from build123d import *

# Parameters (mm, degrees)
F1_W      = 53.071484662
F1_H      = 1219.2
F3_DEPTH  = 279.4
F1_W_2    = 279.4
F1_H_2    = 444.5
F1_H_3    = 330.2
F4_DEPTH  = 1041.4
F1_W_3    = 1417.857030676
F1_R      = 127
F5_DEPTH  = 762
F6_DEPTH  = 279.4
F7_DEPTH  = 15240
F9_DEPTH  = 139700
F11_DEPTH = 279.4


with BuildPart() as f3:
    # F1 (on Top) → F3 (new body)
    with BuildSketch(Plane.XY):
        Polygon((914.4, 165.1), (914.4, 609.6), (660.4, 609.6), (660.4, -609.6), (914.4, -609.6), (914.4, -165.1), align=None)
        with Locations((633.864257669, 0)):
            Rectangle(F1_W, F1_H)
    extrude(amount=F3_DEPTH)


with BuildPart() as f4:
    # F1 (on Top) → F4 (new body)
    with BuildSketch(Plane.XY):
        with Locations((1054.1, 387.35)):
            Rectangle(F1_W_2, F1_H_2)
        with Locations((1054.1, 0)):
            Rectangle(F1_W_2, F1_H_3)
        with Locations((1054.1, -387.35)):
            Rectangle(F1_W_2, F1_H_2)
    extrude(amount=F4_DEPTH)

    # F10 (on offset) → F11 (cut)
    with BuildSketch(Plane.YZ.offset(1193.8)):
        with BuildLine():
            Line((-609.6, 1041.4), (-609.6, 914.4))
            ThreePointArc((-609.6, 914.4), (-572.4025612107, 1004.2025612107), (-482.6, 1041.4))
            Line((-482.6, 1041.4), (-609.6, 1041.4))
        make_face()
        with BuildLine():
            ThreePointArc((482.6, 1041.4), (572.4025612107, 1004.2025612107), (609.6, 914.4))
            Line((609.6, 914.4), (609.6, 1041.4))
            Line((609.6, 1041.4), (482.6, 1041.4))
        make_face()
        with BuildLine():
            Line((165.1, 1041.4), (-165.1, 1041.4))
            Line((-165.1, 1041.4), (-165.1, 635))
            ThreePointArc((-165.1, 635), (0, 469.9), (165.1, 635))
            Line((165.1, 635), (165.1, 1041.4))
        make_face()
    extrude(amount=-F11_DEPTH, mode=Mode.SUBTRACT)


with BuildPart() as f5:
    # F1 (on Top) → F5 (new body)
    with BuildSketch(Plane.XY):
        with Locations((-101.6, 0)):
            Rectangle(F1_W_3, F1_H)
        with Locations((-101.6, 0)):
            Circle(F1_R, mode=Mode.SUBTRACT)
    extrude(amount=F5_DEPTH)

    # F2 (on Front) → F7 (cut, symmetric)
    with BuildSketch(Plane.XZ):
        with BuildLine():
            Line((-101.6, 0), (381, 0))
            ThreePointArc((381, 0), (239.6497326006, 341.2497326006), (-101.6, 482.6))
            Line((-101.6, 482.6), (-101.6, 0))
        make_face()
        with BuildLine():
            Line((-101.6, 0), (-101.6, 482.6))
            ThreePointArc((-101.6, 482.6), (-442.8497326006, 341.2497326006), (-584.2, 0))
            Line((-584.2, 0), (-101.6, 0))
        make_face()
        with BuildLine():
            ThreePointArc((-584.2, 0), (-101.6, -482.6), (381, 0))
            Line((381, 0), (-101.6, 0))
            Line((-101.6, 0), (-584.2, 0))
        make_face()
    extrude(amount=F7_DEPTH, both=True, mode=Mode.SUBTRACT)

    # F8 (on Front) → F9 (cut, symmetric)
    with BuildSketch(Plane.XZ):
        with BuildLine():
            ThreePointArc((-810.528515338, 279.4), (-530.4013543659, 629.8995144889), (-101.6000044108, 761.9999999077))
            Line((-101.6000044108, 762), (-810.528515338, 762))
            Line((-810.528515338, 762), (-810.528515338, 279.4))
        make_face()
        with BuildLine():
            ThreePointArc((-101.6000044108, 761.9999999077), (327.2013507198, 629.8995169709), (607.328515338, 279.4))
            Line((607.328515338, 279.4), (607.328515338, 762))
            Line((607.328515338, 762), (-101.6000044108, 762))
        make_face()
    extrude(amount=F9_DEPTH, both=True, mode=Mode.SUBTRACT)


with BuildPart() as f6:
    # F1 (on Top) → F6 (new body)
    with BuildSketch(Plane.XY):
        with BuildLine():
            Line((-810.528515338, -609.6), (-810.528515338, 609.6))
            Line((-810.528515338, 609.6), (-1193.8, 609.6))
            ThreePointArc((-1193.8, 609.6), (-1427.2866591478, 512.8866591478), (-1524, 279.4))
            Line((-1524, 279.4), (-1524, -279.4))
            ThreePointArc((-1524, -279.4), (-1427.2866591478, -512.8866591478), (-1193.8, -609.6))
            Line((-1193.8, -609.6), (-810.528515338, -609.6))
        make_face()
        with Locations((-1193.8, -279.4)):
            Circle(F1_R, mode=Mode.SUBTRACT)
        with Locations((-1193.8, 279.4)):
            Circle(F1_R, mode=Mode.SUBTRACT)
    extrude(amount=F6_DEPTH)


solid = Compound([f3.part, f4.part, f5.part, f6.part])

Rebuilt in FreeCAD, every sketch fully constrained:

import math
import FreeCAD as App
import Part
import Sketcher
Q = App.Units.Quantity

doc = App.newDocument("Part")
body = doc.addObject("PartDesign::Body", "Body")

# Sketch on XY plane
sketch1 = doc.addObject("Sketcher::SketchObject", "Sketch")
body.addObject(sketch1)
sketch1.AttachmentSupport = (doc.XY_Plane, [""])
sketch1.MapMode = "FlatFace"
sketch1.addGeometry([
    Part.LineSegment(App.Vector(914.4, 609.6, 0), App.Vector(607.328515, 609.6, 0)),
    Part.LineSegment(App.Vector(607.328515, 609.6, 0), App.Vector(607.328515, -609.6, 0)),
    Part.LineSegment(App.Vector(607.328515, -609.6, 0), App.Vector(914.4, -609.6, 0)),
    Part.LineSegment(App.Vector(914.4, -609.6, 0), App.Vector(914.4, 609.6, 0)),
], False)
sketch1.addConstraint([
    Sketcher.Constraint("Coincident", 0, 2, 1, 1),
    Sketcher.Constraint("Coincident", 1, 2, 2, 1),
    Sketcher.Constraint("Coincident", 2, 2, 3, 1),
    Sketcher.Constraint("Coincident", 3, 2, 0, 1),
    Sketcher.Constraint("Horizontal", 0),
    Sketcher.Constraint("Vertical", 1),
    Sketcher.Constraint("Horizontal", 2),
    Sketcher.Constraint("Vertical", 3),
    Sketcher.Constraint("DistanceY", 1, 2, 1, 1, Q("48 in")),
    Sketcher.Constraint("DistanceY", -1, 1, 0, 2, Q("24 in")),
    Sketcher.Constraint("DistanceX", -1, 1, 2, 2, Q("36 in")),
    Sketcher.Constraint("DistanceX", 0, 2, 0, 1, Q("307.071485 mm")),
])
pad1 = doc.addObject("PartDesign::Pad", "Pad")
body.addObject(pad1)
pad1.Profile = sketch1
pad1.Length = Q("11 in")
body2 = doc.addObject("PartDesign::Body", "Body001")

# Sketch on XY plane
sketch2 = doc.addObject("Sketcher::SketchObject", "Sketch001")
body2.addObject(sketch2)
sketch2.AttachmentSupport = (doc.getObject("XY_Plane001"), [""])
sketch2.MapMode = "FlatFace"
sketch2.addGeometry([
    Part.LineSegment(App.Vector(914.4, 609.6, 0), App.Vector(914.4, -609.6, 0)),
    Part.LineSegment(App.Vector(914.4, -609.6, 0), App.Vector(1193.8, -609.6, 0)),
    Part.LineSegment(App.Vector(1193.8, -609.6, 0), App.Vector(1193.8, 609.6, 0)),
    Part.LineSegment(App.Vector(1193.8, 609.6, 0), App.Vector(914.4, 609.6, 0)),
], False)
sketch2.addConstraint([
    Sketcher.Constraint("Coincident", 0, 2, 1, 1),
    Sketcher.Constraint("Coincident", 1, 2, 2, 1),
    Sketcher.Constraint("Coincident", 2, 2, 3, 1),
    Sketcher.Constraint("Coincident", 3, 2, 0, 1),
    Sketcher.Constraint("Vertical", 0),
    Sketcher.Constraint("Horizontal", 1),
    Sketcher.Constraint("Vertical", 2),
    Sketcher.Constraint("Horizontal", 3),
    Sketcher.Constraint("DistanceX", 1, 1, 1, 2, Q("11 in")),
    Sketcher.Constraint("DistanceY", 0, 2, 0, 1, Q("48 in")),
    Sketcher.Constraint("DistanceX", -1, 1, 0, 2, Q("36 in")),
    Sketcher.Constraint("DistanceY", 0, 2, -1, 1, Q("24 in")),
])
pad2 = doc.addObject("PartDesign::Pad", "Pad001")
body2.addObject(pad2)
pad2.Profile = sketch2
pad2.Length = Q("41 in")

# Sketch on YZ plane
sketch3 = doc.addObject("Sketcher::SketchObject", "Sketch002")
body2.addObject(sketch3)
sketch3.AttachmentSupport = (doc.getObject("YZ_Plane001"), [""])
sketch3.MapMode = "FlatFace"
sketch3.AttachmentOffset = App.Placement(App.Vector(0, 0, 47 * 25.4), App.Rotation())
sketch3.addGeometry([
    Part.LineSegment(App.Vector(-609.6, 1041.4, 0), App.Vector(-609.6, 914.4, 0)),  # 0
    Part.ArcOfCircle(Part.Circle(App.Vector(-482.6, 914.4, 0), App.Vector(0, 0, 1), 127), math.radians(90), math.radians(180)),  # 1
    Part.LineSegment(App.Vector(-482.6, 1041.4, 0), App.Vector(-609.6, 1041.4, 0)),  # 2
    Part.ArcOfCircle(Part.Circle(App.Vector(482.6, 914.4, 0), App.Vector(0, 0, 1), 127), math.radians(0), math.radians(90)),  # 3
    Part.LineSegment(App.Vector(609.6, 914.4, 0), App.Vector(609.6, 1041.4, 0)),  # 4
    Part.LineSegment(App.Vector(609.6, 1041.4, 0), App.Vector(482.6, 1041.4, 0)),  # 5
    Part.LineSegment(App.Vector(165.1, 1041.4, 0), App.Vector(-165.1, 1041.4, 0)),  # 6
    Part.LineSegment(App.Vector(-165.1, 1041.4, 0), App.Vector(-165.1, 635, 0)),  # 7
    Part.ArcOfCircle(Part.Circle(App.Vector(0, 635, 0), App.Vector(0, 0, 1), 165.1), math.radians(180), math.radians(360)),  # 8
    Part.LineSegment(App.Vector(165.1, 635, 0), App.Vector(165.1, 1041.4, 0)),  # 9
], False)
sketch3.addConstraint([
    Sketcher.Constraint("Tangent", 0, 2, 1, 2),
    Sketcher.Constraint("Tangent", 1, 1, 2, 1),
    Sketcher.Constraint("Coincident", 2, 2, 0, 1),
    Sketcher.Constraint("Tangent", 3, 1, 4, 1),
    Sketcher.Constraint("Coincident", 4, 2, 5, 1),
    Sketcher.Constraint("Tangent", 5, 2, 3, 2),
    Sketcher.Constraint("Coincident", 6, 2, 7, 1),
    Sketcher.Constraint("Tangent", 7, 2, 8, 1),
    Sketcher.Constraint("Tangent", 8, 2, 9, 1),
    Sketcher.Constraint("Coincident", 9, 2, 6, 1),
    Sketcher.Constraint("Vertical", 0),
    Sketcher.Constraint("Horizontal", 2),
    Sketcher.Constraint("Vertical", 4),
    Sketcher.Constraint("Horizontal", 5),
    Sketcher.Constraint("Horizontal", 6),
    Sketcher.Constraint("Vertical", 7),
    Sketcher.Constraint("Vertical", 9),
    Sketcher.Constraint("Equal", 1, 3),
    Sketcher.Constraint("Symmetric", 1, 3, 3, 3, -2),
    Sketcher.Constraint("PointOnObject", 8, 3, -2),
    Sketcher.Constraint("Horizontal", 5, 2, 6, 2),
    Sketcher.Constraint("Radius", 1, Q("5 in")),
    Sketcher.Constraint("Radius", 8, Q("6.5 in")),
    Sketcher.Constraint("DistanceY", 7, 2, 7, 1, Q("16 in")),
    Sketcher.Constraint("DistanceX", 1, 3, -1, 1, Q("19 in")),
    Sketcher.Constraint("DistanceY", -1, 1, 1, 3, Q("36 in")),
])
pocket1 = doc.addObject("PartDesign::Pocket", "Pocket")
body2.addObject(pocket1)
pocket1.Profile = sketch3
pocket1.Length = Q("11 in")
body3 = doc.addObject("PartDesign::Body", "Body002")

# Sketch on XY plane
sketch4 = doc.addObject("Sketcher::SketchObject", "Sketch003")
body3.addObject(sketch4)
sketch4.AttachmentSupport = (doc.getObject("XY_Plane002"), [""])
sketch4.MapMode = "FlatFace"
sketch4.addGeometry([
    Part.LineSegment(App.Vector(-810.528515, 609.6, 0), App.Vector(-810.528515, -609.6, 0)),  # 0
    Part.LineSegment(App.Vector(-810.528515, -609.6, 0), App.Vector(607.328515, -609.6, 0)),  # 1
    Part.LineSegment(App.Vector(607.328515, -609.6, 0), App.Vector(607.328515, 609.6, 0)),  # 2
    Part.LineSegment(App.Vector(607.328515, 609.6, 0), App.Vector(-810.528515, 609.6, 0)),  # 3
    Part.Circle(App.Vector(-101.6, 0, 0), App.Vector(0, 0, 1), 127),  # 4
], False)
sketch4.addConstraint([
    Sketcher.Constraint("Coincident", 0, 2, 1, 1),
    Sketcher.Constraint("Coincident", 1, 2, 2, 1),
    Sketcher.Constraint("Coincident", 2, 2, 3, 1),
    Sketcher.Constraint("Coincident", 3, 2, 0, 1),
    Sketcher.Constraint("Vertical", 0),
    Sketcher.Constraint("Horizontal", 1),
    Sketcher.Constraint("Vertical", 2),
    Sketcher.Constraint("Horizontal", 3),
    Sketcher.Constraint("PointOnObject", 4, 3, -1),
    Sketcher.Constraint("Diameter", 4, Q("10 in")),
    Sketcher.Constraint("DistanceY", 0, 2, 0, 1, Q("48 in")),
    Sketcher.Constraint("DistanceX", 4, 3, -1, 1, Q("4 in")),
    Sketcher.Constraint("DistanceY", 0, 2, -1, 1, Q("24 in")),
    Sketcher.Constraint("DistanceX", 1, 1, 1, 2, Q("1417.857031 mm")),
    Sketcher.Constraint("DistanceX", 0, 2, -1, 1, Q("810.528515 mm")),
])
pad3 = doc.addObject("PartDesign::Pad", "Pad002")
body3.addObject(pad3)
pad3.Profile = sketch4
pad3.Length = Q("30 in")

# Sketch on XZ plane
sketch5 = doc.addObject("Sketcher::SketchObject", "Sketch004")
body3.addObject(sketch5)
sketch5.AttachmentSupport = (doc.getObject("XZ_Plane002"), [""])
sketch5.MapMode = "FlatFace"
sketch5.addGeometry(Part.Circle(App.Vector(-101.6, 0, 0), App.Vector(0, 0, 1), 482.6), False)
sketch5.addConstraint([
    Sketcher.Constraint("PointOnObject", 0, 3, -1),
    Sketcher.Constraint("Diameter", 0, Q("38 in")),
    Sketcher.Constraint("DistanceX", 0, 3, -1, 1, Q("4 in")),
])
pocket2 = doc.addObject("PartDesign::Pocket", "Pocket001")
body3.addObject(pocket2)
pocket2.Profile = sketch5
pocket2.Length = Q("1200 in")
pocket2.Midplane = True

# Sketch on XZ plane
sketch6 = doc.addObject("Sketcher::SketchObject", "Sketch005")
body3.addObject(sketch6)
sketch6.AttachmentSupport = (doc.getObject("XZ_Plane002"), [""])
sketch6.MapMode = "FlatFace"
sketch6.addGeometry([
    Part.ArcOfCircle(Part.Circle(App.Vector(-101.6, 0, 0), App.Vector(0, 0, 1), 762), math.radians(90), math.radians(158.489812)),  # 0
    Part.LineSegment(App.Vector(-101.600004, 762, 0), App.Vector(-810.528515, 762, 0)),  # 1
    Part.LineSegment(App.Vector(-810.528515, 762, 0), App.Vector(-810.528515, 279.4, 0)),  # 2
    Part.ArcOfCircle(Part.Circle(App.Vector(-101.6, 0, 0), App.Vector(0, 0, 1), 762), math.radians(21.510188), math.radians(90)),  # 3
    Part.LineSegment(App.Vector(607.328515, 279.4, 0), App.Vector(607.328515, 762, 0)),  # 4
    Part.LineSegment(App.Vector(607.328515, 762, 0), App.Vector(-101.600004, 762, 0)),  # 5
], False)
sketch6.addConstraint([
    Sketcher.Constraint("Tangent", 0, 1, 1, 1),
    Sketcher.Constraint("Coincident", 1, 2, 2, 1),
    Sketcher.Constraint("Coincident", 2, 2, 0, 2),
    Sketcher.Constraint("Coincident", 3, 1, 4, 1),
    Sketcher.Constraint("Coincident", 4, 2, 5, 1),
    Sketcher.Constraint("Tangent", 5, 2, 3, 2),
    Sketcher.Constraint("Horizontal", 1),
    Sketcher.Constraint("Vertical", 2),
    Sketcher.Constraint("Vertical", 4),
    Sketcher.Constraint("Horizontal", 5),
    Sketcher.Constraint("Coincident", 3, 3, 0, 3),
    Sketcher.Constraint("Equal", 0, 3),
    Sketcher.Constraint("PointOnObject", 0, 3, -1),
    Sketcher.Constraint("Equal", 2, 4),
    Sketcher.Constraint("Radius", 0, Q("30 in")),
    Sketcher.Constraint("DistanceY", 2, 2, 2, 1, Q("19 in")),
    Sketcher.Constraint("DistanceX", 0, 3, -1, 1, Q("4 in")),
])
pocket3 = doc.addObject("PartDesign::Pocket", "Pocket002")
body3.addObject(pocket3)
pocket3.Profile = sketch6
pocket3.Length = Q("11000 in")
pocket3.Midplane = True
body4 = doc.addObject("PartDesign::Body", "Body003")

# Sketch on XY plane
sketch7 = doc.addObject("Sketcher::SketchObject", "Sketch006")
body4.addObject(sketch7)
sketch7.AttachmentSupport = (doc.getObject("XY_Plane003"), [""])
sketch7.MapMode = "FlatFace"
sketch7.addGeometry([
    Part.LineSegment(App.Vector(-810.528515, -609.6, 0), App.Vector(-810.528515, 609.6, 0)),  # 0
    Part.LineSegment(App.Vector(-810.528515, 609.6, 0), App.Vector(-1193.8, 609.6, 0)),  # 1
    Part.ArcOfCircle(Part.Circle(App.Vector(-1193.8, 279.4, 0), App.Vector(0, 0, 1), 330.2), math.radians(90), math.radians(180)),  # 2
    Part.LineSegment(App.Vector(-1524, 279.4, 0), App.Vector(-1524, -279.4, 0)),  # 3
    Part.ArcOfCircle(Part.Circle(App.Vector(-1193.8, -279.4, 0), App.Vector(0, 0, 1), 330.2), math.radians(180), math.radians(270)),  # 4
    Part.LineSegment(App.Vector(-1193.8, -609.6, 0), App.Vector(-810.528515, -609.6, 0)),  # 5
    Part.Circle(App.Vector(-1193.8, -279.4, 0), App.Vector(0, 0, 1), 127),  # 6
    Part.Circle(App.Vector(-1193.8, 279.4, 0), App.Vector(0, 0, 1), 127),  # 7
], False)
sketch7.addConstraint([
    Sketcher.Constraint("Coincident", 0, 2, 1, 1),
    Sketcher.Constraint("Tangent", 1, 2, 2, 1),
    Sketcher.Constraint("Tangent", 2, 2, 3, 1),
    Sketcher.Constraint("Tangent", 3, 2, 4, 1),
    Sketcher.Constraint("Tangent", 4, 2, 5, 1),
    Sketcher.Constraint("Coincident", 5, 2, 0, 1),
    Sketcher.Constraint("Vertical", 0),
    Sketcher.Constraint("Horizontal", 1),
    Sketcher.Constraint("Vertical", 3),
    Sketcher.Constraint("Horizontal", 5),
    Sketcher.Constraint("Coincident", 6, 3, 4, 3),
    Sketcher.Constraint("Coincident", 7, 3, 2, 3),
    Sketcher.Constraint("Equal", 2, 4),
    Sketcher.Constraint("Equal", 6, 7),
    Sketcher.Constraint("Diameter", 6, Q("10 in")),
    Sketcher.Constraint("Radius", 2, Q("13 in")),
    Sketcher.Constraint("DistanceY", 0, 1, 0, 2, Q("48 in")),
    Sketcher.Constraint("DistanceX", 2, 3, -1, 1, Q("47 in")),
    Sketcher.Constraint("DistanceY", -1, 1, 2, 3, Q("11 in")),
    Sketcher.Constraint("DistanceX", 1, 2, 1, 1, Q("383.271485 mm")),
])
pad4 = doc.addObject("PartDesign::Pad", "Pad003")
body4.addObject(pad4)
pad4.Profile = sketch7
pad4.Length = Q("11 in")

doc.recompute()
